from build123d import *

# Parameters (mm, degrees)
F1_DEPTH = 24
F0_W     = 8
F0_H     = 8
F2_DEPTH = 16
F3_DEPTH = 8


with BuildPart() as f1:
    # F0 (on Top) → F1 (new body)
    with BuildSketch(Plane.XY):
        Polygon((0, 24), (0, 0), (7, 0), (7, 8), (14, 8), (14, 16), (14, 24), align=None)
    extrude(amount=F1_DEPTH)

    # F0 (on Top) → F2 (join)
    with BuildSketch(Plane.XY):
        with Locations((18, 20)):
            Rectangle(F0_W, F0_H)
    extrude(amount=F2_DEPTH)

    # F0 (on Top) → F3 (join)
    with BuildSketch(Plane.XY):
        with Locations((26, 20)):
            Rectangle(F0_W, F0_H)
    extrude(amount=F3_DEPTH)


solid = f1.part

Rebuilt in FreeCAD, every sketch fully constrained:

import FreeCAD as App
import Part
import Sketcher

V = App.Vector

doc = App.newDocument("Part")
body = doc.addObject("PartDesign::Body", "Body")

sketch1 = body.newObject("Sketcher::SketchObject", "Sketch")
sketch1.AttachmentSupport = (doc.getObject("XY_Plane"), [""])
sketch1.MapMode = "FlatFace"
sketch1.addGeometry([
    Part.LineSegment(V(0, 24, 0), V(0, 0, 0)),
    Part.LineSegment(V(0, 0, 0), V(7, 0, 0)),
    Part.LineSegment(V(7, 0, 0), V(7, 8, 0)),
    Part.LineSegment(V(7, 8, 0), V(14, 8, 0)),
    Part.LineSegment(V(14, 8, 0), V(14, 24, 0)),
    Part.LineSegment(V(14, 24, 0), V(0, 24, 0)),
], False)
sketch1.addConstraint([
    Sketcher.Constraint("Coincident", 0, 2, 1, 1),
    Sketcher.Constraint("Coincident", 1, 2, 2, 1),
    Sketcher.Constraint("Coincident", 2, 2, 3, 1),
    Sketcher.Constraint("Coincident", 3, 2, 4, 1),
    Sketcher.Constraint("Coincident", 4, 2, 5, 1),
    Sketcher.Constraint("Coincident", 5, 2, 0, 1),
    Sketcher.Constraint("Vertical", 0),
    Sketcher.Constraint("Horizontal", 1),
    Sketcher.Constraint("Vertical", 2),
    Sketcher.Constraint("Horizontal", 3),
    Sketcher.Constraint("Vertical", 4),
    Sketcher.Constraint("Horizontal", 5),
    Sketcher.Constraint("Coincident", 0, 2, -1, 1),
    Sketcher.Constraint("Equal", 1, 3),
    Sketcher.Constraint("DistanceX", 1, 1, 1, 2, 7.0),
    Sketcher.Constraint("DistanceY", 0, 2, 0, 1, 24.0),
    Sketcher.Constraint("DistanceY", 2, 1, 2, 2, 8.0),
])
pad1 = body.newObject("PartDesign::Pad", "Pad")
pad1.Profile = sketch1
pad1.Length = 24

sketch2 = body.newObject("Sketcher::SketchObject", "Sketch001")
sketch2.AttachmentSupport = (doc.getObject("XY_Plane"), [""])
sketch2.MapMode = "FlatFace"
sketch2.addGeometry([
    Part.LineSegment(V(14, 24, 0), V(14, 16, 0)),
    Part.LineSegment(V(14, 16, 0), V(22, 16, 0)),
    Part.LineSegment(V(22, 16, 0), V(22, 24, 0)),
    Part.LineSegment(V(22, 24, 0), V(14, 24, 0)),
], False)
sketch2.addConstraint([
    Sketcher.Constraint("Coincident", 0, 2, 1, 1),
    Sketcher.Constraint("Coincident", 1, 2, 2, 1),
    Sketcher.Constraint("Coincident", 2, 2, 3, 1),
    Sketcher.Constraint("Coincident", 3, 2, 0, 1),
    Sketcher.Constraint("Vertical", 0),
    Sketcher.Constraint("Horizontal", 1),
    Sketcher.Constraint("Vertical", 2),
    Sketcher.Constraint("Horizontal", 3),
    Sketcher.Constraint("Equal", 3, 0),
    Sketcher.Constraint("DistanceX", 1, 1, 1, 2, 8.0),
    Sketcher.Constraint("DistanceX", -1, 1, 0, 2, 14.0),
    Sketcher.Constraint("DistanceY", -1, 1, 0, 2, 16.0),
])
pad2 = body.newObject("PartDesign::Pad", "Pad001")
pad2.Profile = sketch2
pad2.Length = 16

sketch3 = body.newObject("Sketcher::SketchObject", "Sketch002")
sketch3.AttachmentSupport = (doc.getObject("XY_Plane"), [""])
sketch3.MapMode = "FlatFace"
sketch3.addGeometry([
    Part.LineSegment(V(22, 24, 0), V(22, 16, 0)),
    Part.LineSegment(V(22, 16, 0), V(30, 16, 0)),
    Part.LineSegment(V(30, 16, 0), V(30, 24, 0)),
    Part.LineSegment(V(30, 24, 0), V(22, 24, 0)),
], False)
sketch3.addConstraint([
    Sketcher.Constraint("Coincident", 0, 2, 1, 1),
    Sketcher.Constraint("Coincident", 1, 2, 2, 1),
    Sketcher.Constraint("Coincident", 2, 2, 3, 1),
    Sketcher.Constraint("Coincident", 3, 2, 0, 1),
    Sketcher.Constraint("Vertical", 0),
    Sketcher.Constraint("Horizontal", 1),
    Sketcher.Constraint("Vertical", 2),
    Sketcher.Constraint("Horizontal", 3),
    Sketcher.Constraint("Equal", 3, 0),
    Sketcher.Constraint("DistanceX", 1, 1, 1, 2, 8.0),
    Sketcher.Constraint("DistanceX", -1, 1, 0, 2, 22.0),
    Sketcher.Constraint("DistanceY", -1, 1, 0, 2, 16.0),
])
pad3 = body.newObject("PartDesign::Pad", "Pad002")
pad3.Profile = sketch3
pad3.Length = 8

doc.recompute()
